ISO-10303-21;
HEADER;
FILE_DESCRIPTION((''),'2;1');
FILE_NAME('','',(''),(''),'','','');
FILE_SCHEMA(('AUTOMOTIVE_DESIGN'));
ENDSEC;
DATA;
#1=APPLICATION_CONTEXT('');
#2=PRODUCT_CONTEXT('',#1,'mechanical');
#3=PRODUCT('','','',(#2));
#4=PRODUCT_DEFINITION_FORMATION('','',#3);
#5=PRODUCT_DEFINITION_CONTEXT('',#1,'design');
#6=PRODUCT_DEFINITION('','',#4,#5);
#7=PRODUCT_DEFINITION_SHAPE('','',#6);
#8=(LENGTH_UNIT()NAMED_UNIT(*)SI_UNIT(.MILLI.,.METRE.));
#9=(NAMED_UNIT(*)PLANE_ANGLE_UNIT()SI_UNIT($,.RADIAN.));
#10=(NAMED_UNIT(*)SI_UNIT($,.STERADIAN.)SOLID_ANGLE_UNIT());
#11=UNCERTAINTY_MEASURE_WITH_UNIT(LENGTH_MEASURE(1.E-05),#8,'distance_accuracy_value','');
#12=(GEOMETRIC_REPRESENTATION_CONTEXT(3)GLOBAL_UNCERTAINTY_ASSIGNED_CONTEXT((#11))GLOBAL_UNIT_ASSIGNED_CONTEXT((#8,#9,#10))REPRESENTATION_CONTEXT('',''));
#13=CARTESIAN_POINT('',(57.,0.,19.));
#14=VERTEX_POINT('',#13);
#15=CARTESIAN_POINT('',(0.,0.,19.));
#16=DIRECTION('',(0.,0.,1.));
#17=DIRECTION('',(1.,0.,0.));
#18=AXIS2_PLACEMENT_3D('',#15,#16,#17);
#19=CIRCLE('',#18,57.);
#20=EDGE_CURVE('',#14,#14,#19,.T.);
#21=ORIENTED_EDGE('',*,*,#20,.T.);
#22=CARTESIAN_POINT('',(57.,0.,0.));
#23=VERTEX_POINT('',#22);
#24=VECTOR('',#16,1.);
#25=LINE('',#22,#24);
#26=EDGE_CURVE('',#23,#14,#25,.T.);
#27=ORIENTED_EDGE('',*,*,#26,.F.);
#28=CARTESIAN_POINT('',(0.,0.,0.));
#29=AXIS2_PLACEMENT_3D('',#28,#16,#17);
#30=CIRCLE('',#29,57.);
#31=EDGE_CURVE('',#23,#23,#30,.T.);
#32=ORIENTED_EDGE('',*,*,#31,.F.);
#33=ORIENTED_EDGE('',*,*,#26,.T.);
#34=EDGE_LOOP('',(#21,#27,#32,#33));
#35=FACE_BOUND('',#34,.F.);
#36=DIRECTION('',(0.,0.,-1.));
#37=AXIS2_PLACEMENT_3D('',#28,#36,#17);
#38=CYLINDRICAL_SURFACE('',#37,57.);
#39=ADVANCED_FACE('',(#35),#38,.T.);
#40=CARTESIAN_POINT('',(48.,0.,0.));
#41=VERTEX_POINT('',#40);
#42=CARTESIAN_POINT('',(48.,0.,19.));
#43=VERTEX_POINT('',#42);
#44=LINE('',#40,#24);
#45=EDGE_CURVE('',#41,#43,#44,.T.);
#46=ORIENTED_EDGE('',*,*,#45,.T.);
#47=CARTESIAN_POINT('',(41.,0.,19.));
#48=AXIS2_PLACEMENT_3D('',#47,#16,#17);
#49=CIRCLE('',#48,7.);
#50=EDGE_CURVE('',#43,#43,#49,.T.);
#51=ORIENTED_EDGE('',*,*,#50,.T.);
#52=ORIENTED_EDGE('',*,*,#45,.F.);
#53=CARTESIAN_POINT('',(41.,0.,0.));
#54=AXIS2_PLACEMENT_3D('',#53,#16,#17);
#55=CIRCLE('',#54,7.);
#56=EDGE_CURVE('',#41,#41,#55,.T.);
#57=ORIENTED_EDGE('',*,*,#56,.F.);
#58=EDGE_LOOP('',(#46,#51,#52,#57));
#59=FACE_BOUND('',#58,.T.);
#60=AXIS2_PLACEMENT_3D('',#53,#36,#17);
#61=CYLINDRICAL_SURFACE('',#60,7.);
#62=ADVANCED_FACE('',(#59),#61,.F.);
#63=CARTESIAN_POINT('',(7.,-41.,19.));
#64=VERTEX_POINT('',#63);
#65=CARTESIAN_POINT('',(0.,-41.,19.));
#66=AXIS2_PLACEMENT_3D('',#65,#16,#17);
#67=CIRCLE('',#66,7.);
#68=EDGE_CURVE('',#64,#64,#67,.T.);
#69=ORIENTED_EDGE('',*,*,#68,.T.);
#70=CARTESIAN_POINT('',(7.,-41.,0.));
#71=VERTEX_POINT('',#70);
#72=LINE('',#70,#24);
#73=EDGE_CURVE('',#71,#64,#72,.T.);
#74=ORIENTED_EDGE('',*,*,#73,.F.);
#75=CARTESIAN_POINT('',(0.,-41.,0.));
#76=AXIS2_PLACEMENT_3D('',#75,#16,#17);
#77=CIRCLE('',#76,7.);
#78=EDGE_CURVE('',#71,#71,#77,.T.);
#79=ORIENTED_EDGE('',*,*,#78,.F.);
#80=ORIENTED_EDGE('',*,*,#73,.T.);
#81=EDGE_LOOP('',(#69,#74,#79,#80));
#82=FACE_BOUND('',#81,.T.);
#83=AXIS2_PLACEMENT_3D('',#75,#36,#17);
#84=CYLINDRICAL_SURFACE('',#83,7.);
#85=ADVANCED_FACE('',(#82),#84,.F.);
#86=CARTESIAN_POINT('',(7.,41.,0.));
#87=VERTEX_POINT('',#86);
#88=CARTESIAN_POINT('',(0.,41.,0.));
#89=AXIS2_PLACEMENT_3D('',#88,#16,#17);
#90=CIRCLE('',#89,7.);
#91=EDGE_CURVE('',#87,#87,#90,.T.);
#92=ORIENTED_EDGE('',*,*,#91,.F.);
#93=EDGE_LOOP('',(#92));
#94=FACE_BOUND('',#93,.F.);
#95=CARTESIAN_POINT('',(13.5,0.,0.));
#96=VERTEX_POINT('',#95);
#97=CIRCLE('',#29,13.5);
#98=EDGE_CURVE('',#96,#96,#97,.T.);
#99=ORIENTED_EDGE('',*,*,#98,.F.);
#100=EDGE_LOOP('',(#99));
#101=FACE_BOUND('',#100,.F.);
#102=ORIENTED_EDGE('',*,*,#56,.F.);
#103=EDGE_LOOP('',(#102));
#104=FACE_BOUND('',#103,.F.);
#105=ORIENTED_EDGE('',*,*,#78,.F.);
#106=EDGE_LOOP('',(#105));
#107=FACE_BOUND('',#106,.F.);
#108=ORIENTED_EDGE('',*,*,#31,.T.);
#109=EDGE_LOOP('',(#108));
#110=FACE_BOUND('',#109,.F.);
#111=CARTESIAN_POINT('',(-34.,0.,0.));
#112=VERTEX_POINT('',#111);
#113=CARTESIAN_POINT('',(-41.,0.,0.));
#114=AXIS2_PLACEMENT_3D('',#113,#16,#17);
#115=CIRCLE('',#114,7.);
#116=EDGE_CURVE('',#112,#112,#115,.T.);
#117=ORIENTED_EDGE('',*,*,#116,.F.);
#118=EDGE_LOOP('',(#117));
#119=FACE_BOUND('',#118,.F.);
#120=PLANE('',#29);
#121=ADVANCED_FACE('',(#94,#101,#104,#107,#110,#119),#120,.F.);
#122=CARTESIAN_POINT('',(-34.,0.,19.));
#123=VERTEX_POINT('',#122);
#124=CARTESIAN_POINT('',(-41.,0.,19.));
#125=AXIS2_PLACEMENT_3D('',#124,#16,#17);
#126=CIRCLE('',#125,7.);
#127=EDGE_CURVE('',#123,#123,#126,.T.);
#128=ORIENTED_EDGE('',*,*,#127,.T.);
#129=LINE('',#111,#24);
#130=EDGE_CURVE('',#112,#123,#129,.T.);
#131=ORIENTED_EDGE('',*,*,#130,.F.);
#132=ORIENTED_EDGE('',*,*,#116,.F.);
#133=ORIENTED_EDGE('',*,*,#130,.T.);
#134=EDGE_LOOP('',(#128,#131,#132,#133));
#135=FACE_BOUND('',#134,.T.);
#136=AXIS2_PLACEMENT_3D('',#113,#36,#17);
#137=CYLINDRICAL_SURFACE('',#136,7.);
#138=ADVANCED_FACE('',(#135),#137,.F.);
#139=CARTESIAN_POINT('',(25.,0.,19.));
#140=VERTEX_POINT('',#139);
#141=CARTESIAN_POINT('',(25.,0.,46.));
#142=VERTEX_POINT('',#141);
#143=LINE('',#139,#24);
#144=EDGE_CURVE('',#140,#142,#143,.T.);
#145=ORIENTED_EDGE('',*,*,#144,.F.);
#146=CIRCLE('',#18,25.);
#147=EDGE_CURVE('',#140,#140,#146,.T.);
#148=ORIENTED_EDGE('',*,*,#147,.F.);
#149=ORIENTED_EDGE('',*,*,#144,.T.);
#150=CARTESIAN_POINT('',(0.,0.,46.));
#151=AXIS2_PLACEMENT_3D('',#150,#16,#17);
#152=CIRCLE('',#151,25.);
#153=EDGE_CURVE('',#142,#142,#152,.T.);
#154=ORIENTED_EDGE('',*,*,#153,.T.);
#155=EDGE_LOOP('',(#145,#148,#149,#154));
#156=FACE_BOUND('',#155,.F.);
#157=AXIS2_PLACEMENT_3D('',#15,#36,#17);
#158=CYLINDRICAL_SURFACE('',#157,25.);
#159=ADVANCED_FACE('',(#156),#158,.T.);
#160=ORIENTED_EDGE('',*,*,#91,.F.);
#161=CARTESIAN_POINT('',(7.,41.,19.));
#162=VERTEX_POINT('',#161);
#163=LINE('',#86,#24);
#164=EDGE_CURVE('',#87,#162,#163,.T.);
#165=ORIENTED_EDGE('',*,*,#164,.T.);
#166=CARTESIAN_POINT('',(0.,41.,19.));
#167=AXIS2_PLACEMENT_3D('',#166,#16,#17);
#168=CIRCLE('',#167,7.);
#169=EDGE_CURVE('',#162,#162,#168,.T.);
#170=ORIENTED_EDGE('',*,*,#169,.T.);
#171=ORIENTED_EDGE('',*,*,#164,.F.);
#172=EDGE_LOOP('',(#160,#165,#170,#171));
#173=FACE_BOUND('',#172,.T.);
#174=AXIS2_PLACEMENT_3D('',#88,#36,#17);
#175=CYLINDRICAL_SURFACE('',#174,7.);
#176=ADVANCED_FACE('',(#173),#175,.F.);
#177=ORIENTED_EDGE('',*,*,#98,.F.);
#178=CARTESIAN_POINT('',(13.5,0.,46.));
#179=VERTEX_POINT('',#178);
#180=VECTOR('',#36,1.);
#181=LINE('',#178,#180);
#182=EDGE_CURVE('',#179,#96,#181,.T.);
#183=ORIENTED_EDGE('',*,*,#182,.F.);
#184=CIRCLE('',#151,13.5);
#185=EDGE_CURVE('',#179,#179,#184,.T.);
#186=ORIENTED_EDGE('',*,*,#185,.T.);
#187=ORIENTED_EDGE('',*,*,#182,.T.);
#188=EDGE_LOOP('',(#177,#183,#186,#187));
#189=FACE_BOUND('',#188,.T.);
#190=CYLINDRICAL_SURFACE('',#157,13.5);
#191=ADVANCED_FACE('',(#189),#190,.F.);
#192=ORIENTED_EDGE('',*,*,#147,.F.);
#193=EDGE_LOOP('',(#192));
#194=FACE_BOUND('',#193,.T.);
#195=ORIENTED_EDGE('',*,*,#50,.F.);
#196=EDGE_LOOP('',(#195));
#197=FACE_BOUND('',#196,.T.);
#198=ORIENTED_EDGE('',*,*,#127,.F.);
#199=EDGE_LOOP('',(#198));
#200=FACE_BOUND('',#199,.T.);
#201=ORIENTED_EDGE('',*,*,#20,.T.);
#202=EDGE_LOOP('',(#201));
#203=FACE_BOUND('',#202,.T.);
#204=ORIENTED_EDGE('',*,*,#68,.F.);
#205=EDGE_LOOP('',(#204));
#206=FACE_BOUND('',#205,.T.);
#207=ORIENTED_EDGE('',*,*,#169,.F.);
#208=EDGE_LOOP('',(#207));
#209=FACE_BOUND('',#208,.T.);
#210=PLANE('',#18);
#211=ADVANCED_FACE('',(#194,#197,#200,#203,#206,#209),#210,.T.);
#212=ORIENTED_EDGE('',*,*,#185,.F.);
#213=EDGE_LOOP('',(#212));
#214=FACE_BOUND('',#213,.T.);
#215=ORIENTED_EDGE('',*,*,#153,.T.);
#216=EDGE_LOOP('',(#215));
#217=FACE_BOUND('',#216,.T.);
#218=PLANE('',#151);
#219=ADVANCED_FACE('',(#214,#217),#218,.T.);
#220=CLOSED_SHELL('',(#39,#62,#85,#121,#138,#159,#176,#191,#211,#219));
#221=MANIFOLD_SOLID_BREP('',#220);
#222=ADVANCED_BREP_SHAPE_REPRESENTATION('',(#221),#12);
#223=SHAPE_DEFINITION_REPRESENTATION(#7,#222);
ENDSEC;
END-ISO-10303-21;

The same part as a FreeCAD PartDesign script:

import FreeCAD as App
import Part
import Sketcher
from FreeCAD import Vector

doc = App.newDocument("Part")
body = doc.addObject("PartDesign::Body", "Body")

# Sketch on XY plane
sketch1 = body.newObject("Sketcher::SketchObject", "Sketch")
sketch1.AttachmentSupport = (doc.getObject("XY_Plane"), [""])
sketch1.MapMode = "FlatFace"
sketch1.addGeometry([
    Part.Circle(Vector(0, 0, 0), Vector(0, 0, 1), 57),  # 0
    Part.Circle(Vector(0, -41, 0), Vector(0, 0, 1), 7),  # 1
    Part.Circle(Vector(-41, 0, 0), Vector(0, 0, 1), 7),  # 2
    Part.Circle(Vector(0, 0, 0), Vector(0, 0, 1), 14),  # 3
    Part.Circle(Vector(41, 0, 0), Vector(0, 0, 1), 7),  # 4
    Part.Circle(Vector(0, 41, 0), Vector(0, 0, 1), 7),  # 5
], False)
sketch1.addConstraint([
    Sketcher.Constraint("Coincident", 0, 3, -1, 1),
    Sketcher.Constraint("Coincident", 3, 3, -1, 1),
    Sketcher.Constraint("Equal", 1, 2),
    Sketcher.Constraint("Equal", 2, 4),
    Sketcher.Constraint("Equal", 4, 5),
    Sketcher.Constraint("Symmetric", 2, 3, 4, 3, -1, 1),
    Sketcher.Constraint("Symmetric", 1, 3, 5, 3, -1, 1),
    Sketcher.Constraint("PointOnObject", 1, 3, -2),
    Sketcher.Constraint("PointOnObject", 2, 3, -1),
    Sketcher.Constraint("Diameter", 0, 114.0),
    Sketcher.Constraint("Diameter", 1, 14.0),
    Sketcher.Constraint("Diameter", 3, 27.0),
    Sketcher.Constraint("DistanceY", 1, 3, -1, 1, 41.0),
    Sketcher.Constraint("DistanceX", 2, 3, -1, 1, 41.0),
])
pad1 = body.newObject("PartDesign::Pad", "Pad")
pad1.Profile = sketch1
pad1.Length = 19

# Sketch on XY plane
sketch2 = body.newObject("Sketcher::SketchObject", "Sketch001")
sketch2.AttachmentSupport = (doc.getObject("XY_Plane"), [""])
sketch2.MapMode = "FlatFace"
sketch2.AttachmentOffset = App.Placement(Vector(0, 0, 19), App.Rotation())
sketch2.addGeometry([
    Part.Circle(Vector(0, 0, 0), Vector(0, 0, 1), 25),
    Part.Circle(Vector(0, 0, 0), Vector(0, 0, 1), 14),
], False)
sketch2.addConstraint([
    Sketcher.Constraint("Coincident", 0, 3, -1, 1),
    Sketcher.Constraint("Coincident", 1, 3, -1, 1),
    Sketcher.Constraint("Diameter", 0, 50.0),
    Sketcher.Constraint("Diameter", 1, 27.0),
])
pad2 = body.newObject("PartDesign::Pad", "Pad001")
pad2.Profile = sketch2
pad2.Length = 27

doc.recompute()
